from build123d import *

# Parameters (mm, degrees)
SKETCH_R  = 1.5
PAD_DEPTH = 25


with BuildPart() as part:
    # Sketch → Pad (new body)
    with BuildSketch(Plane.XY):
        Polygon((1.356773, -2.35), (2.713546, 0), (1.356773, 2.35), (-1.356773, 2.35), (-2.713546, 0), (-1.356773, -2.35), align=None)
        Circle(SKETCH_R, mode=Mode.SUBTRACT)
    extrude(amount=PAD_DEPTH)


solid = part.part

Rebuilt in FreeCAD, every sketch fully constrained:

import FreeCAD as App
import Part
import Sketcher

V = App.Vector
Q = App.Units.Quantity

doc = App.newDocument("Part")
body = doc.addObject("PartDesign::Body", "Body")

# Sketch on XY plane
sketch1 = doc.addObject("Sketcher::SketchObject", "Sketch")
body.addObject(sketch1)
sketch1.AttachmentSupport = (doc.XY_Plane, [""])
sketch1.MapMode = "FlatFace"
sketch1.addGeometry([
    Part.LineSegment(V(1.4, -2.4, 0), V(2.7, 0, 0)),  # 0
    Part.LineSegment(V(2.7, 0, 0), V(1.4, 2.4, 0)),  # 1
    Part.LineSegment(V(1.4, 2.4, 0), V(-1.4, 2.4, 0)),  # 2
    Part.LineSegment(V(-1.4, 2.4, 0), V(-2.7, 0, 0)),  # 3
    Part.LineSegment(V(-2.7, 0, 0), V(-1.4, -2.4, 0)),  # 4
    Part.LineSegment(V(-1.4, -2.4, 0), V(1.4, -2.4, 0)),  # 5
    Part.Circle(V(0, 0, 0), V(0, 0, 1), 1.5),  # 6
], False)
sketch1.addConstraint([
    Sketcher.Constraint("Coincident", 0, 2, 1, 1),
    Sketcher.Constraint("Coincident", 1, 2, 2, 1),
    Sketcher.Constraint("Coincident", 2, 2, 3, 1),
    Sketcher.Constraint("Coincident", 3, 2, 4, 1),
    Sketcher.Constraint("Coincident", 4, 2, 5, 1),
    Sketcher.Constraint("Coincident", 5, 2, 0, 1),
    Sketcher.Constraint("Horizontal", 2),
    Sketcher.Constraint("Horizontal", 5),
    Sketcher.Constraint("Coincident", 6, 3, -1, 1),
    Sketcher.Constraint("Symmetric", 0, 2, 3, 2, -1, 1),
    Sketcher.Constraint("Symmetric", 1, 2, 4, 2, -1, 1),
    Sketcher.Constraint("PointOnObject", 0, 2, -1),
    Sketcher.Constraint("Parallel", 0, 3),
    Sketcher.Constraint("Vertical", 2, 2, 4, 2),
    Sketcher.Constraint("Diameter", 6, 3.0),
    Sketcher.Constraint("Angle", 0, Q("60.000002 deg")),
    Sketcher.Constraint("DistanceY", 4, 2, 2, 2, 4.7),
    Sketcher.Constraint("DistanceX", 2, 2, 2, 1, 2.713546),
])
pad1 = doc.addObject("PartDesign::Pad", "Pad")
body.addObject(pad1)
pad1.Profile = sketch1
pad1.Length = 25

doc.recompute()
